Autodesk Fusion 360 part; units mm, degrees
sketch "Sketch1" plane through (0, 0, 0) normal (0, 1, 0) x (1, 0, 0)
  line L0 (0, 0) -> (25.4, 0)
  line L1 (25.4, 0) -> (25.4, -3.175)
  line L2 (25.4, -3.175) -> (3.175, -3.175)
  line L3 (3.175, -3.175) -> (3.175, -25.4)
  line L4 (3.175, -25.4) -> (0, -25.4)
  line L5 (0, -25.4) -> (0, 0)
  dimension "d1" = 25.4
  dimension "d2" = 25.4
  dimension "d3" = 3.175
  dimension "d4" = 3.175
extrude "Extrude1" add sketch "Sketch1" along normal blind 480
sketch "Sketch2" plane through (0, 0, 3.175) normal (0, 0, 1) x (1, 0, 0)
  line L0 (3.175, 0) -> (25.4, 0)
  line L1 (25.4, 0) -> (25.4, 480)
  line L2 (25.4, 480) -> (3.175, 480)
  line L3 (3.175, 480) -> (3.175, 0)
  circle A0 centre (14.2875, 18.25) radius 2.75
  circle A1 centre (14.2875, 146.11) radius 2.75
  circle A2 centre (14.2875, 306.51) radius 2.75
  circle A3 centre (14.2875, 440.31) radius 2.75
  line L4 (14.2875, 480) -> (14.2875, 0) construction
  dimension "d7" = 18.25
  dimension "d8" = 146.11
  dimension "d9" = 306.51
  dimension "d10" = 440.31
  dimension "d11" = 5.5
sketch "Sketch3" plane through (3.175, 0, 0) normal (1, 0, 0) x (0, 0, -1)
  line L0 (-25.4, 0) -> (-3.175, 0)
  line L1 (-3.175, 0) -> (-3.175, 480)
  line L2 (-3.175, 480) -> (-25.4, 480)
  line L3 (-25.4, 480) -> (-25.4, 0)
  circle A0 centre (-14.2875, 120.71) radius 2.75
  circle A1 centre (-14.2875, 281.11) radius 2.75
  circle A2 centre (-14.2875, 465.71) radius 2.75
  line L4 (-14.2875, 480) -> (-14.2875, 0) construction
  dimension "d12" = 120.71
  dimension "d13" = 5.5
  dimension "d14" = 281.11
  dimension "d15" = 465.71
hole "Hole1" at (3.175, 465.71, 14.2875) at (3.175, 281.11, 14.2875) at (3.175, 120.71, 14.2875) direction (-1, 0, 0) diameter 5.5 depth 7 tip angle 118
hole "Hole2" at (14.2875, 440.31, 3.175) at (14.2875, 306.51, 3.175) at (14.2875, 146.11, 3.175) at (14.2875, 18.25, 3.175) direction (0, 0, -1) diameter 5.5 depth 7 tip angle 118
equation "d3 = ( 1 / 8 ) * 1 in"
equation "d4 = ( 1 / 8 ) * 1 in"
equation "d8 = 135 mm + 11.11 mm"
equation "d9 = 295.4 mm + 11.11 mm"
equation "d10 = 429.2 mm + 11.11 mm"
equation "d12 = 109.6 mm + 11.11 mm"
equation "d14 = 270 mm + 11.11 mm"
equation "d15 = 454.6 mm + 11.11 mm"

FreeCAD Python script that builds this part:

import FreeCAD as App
import Part
import Sketcher
Q = App.Units.Quantity

doc = App.newDocument("Part")
body = doc.addObject("PartDesign::Body", "Body")

sketch1 = body.newObject("Sketcher::SketchObject", "Sketch")
sketch1.AttachmentSupport = (doc.getObject("XZ_Plane"), [""])
sketch1.MapMode = "FlatFace"
sketch1.addGeometry(Part.LineSegment(App.Vector(25.4, 0, 0), App.Vector(0, 0, 0)), False)
sketch1.addGeometry(Part.LineSegment(App.Vector(0, 0, 0), App.Vector(0, 25.4, 0)), False)
sketch1.addGeometry(Part.LineSegment(App.Vector(0, 25.4, 0), App.Vector(3.175, 25.4, 0)), False)
sketch1.addGeometry(Part.LineSegment(App.Vector(3.175, 25.4, 0), App.Vector(3.175, 3.175, 0)), False)
sketch1.addGeometry(Part.LineSegment(App.Vector(3.175, 3.175, 0), App.Vector(25.4, 3.175, 0)), False)
sketch1.addGeometry(Part.LineSegment(App.Vector(25.4, 3.175, 0), App.Vector(25.4, 0, 0)), False)
sketch1.addConstraint(Sketcher.Constraint("Coincident", 0, 2, 1, 1))
sketch1.addConstraint(Sketcher.Constraint("Coincident", 1, 2, 2, 1))
sketch1.addConstraint(Sketcher.Constraint("Coincident", 2, 2, 3, 1))
sketch1.addConstraint(Sketcher.Constraint("Coincident", 3, 2, 4, 1))
sketch1.addConstraint(Sketcher.Constraint("Coincident", 4, 2, 5, 1))
sketch1.addConstraint(Sketcher.Constraint("Coincident", 5, 2, 0, 1))
sketch1.addConstraint(Sketcher.Constraint("Horizontal", 0))
sketch1.addConstraint(Sketcher.Constraint("Vertical", 1))
sketch1.addConstraint(Sketcher.Constraint("Horizontal", 2))
sketch1.addConstraint(Sketcher.Constraint("Vertical", 3))
sketch1.addConstraint(Sketcher.Constraint("Horizontal", 4))
sketch1.addConstraint(Sketcher.Constraint("Vertical", 5))
sketch1.addConstraint(Sketcher.Constraint("Coincident", 0, 2, -1, 1))
sketch1.addConstraint(Sketcher.Constraint("Equal", 0, 1))
sketch1.addConstraint(Sketcher.Constraint("Equal", 4, 3))
sketch1.addConstraint(Sketcher.Constraint("DistanceX", 0, 2, 0, 1, Q("1 in")))
sketch1.addConstraint(Sketcher.Constraint("DistanceX", 2, 1, 2, 2, Q("0.125 in")))
pad1 = body.newObject("PartDesign::Pad", "Pad")
pad1.Profile = sketch1
pad1.Length = 480
pad1.Reversed = True

sketch2 = body.newObject("Sketcher::SketchObject", "Sketch001")
sketch2.AttachmentSupport = (doc.getObject("YZ_Plane"), [""])
sketch2.MapMode = "FlatFace"
sketch2.AttachmentOffset = App.Placement(App.Vector(0, 0, 0.125 * 25.4), App.Rotation())
sketch2.addGeometry(Part.Circle(App.Vector(465.71, 14.2875, 0), App.Vector(0, 0, 1), 2.75), False)
sketch2.addGeometry(Part.Circle(App.Vector(281.11, 14.2875, 0), App.Vector(0, 0, 1), 2.75), False)
sketch2.addGeometry(Part.Circle(App.Vector(120.71, 14.2875, 0), App.Vector(0, 0, 1), 2.75), False)
sketch2.addConstraint(Sketcher.Constraint("Equal", 0, 1))
sketch2.addConstraint(Sketcher.Constraint("Equal", 1, 2))
sketch2.addConstraint(Sketcher.Constraint("Horizontal", 0, 3, 1, 3))
sketch2.addConstraint(Sketcher.Constraint("Horizontal", 1, 3, 2, 3))
sketch2.addConstraint(Sketcher.Constraint("Diameter", 0, 5.5))
sketch2.addConstraint(Sketcher.Constraint("DistanceY", -1, 1, 0, 3, Q("0.5625 in")))
sketch2.addConstraint(Sketcher.Constraint("DistanceX", -1, 1, 0, 3, 465.71))
sketch2.addConstraint(Sketcher.Constraint("DistanceX", -1, 1, 1, 3, 281.11))
sketch2.addConstraint(Sketcher.Constraint("DistanceX", -1, 1, 2, 3, 120.71))
doc.recompute()
hole = body.newObject("PartDesign::Hole", "Hole")
hole.Profile = sketch2
hole.ThreadType = "None"
hole.Diameter = 5.5
hole.DepthType = "Dimension"
hole.Depth = Q("0.2755906 in")
hole.DrillPoint = "Angled"
hole.DrillPointAngle = 118

sketch3 = body.newObject("Sketcher::SketchObject", "Sketch002")
sketch3.AttachmentSupport = (doc.getObject("XY_Plane"), [""])
sketch3.MapMode = "FlatFace"
sketch3.AttachmentOffset = App.Placement(App.Vector(0, 0, 0.125 * 25.4), App.Rotation())
sketch3.addGeometry(Part.Circle(App.Vector(14.2875, 440.31, 0), App.Vector(0, 0, 1), 2.75), False)
sketch3.addGeometry(Part.Circle(App.Vector(14.2875, 306.51, 0), App.Vector(0, 0, 1), 2.75), False)
sketch3.addGeometry(Part.Circle(App.Vector(14.2875, 146.11, 0), App.Vector(0, 0, 1), 2.75), False)
sketch3.addGeometry(Part.Circle(App.Vector(14.2875, 18.25, 0), App.Vector(0, 0, 1), 2.75), False)
sketch3.addConstraint(Sketcher.Constraint("Equal", 0, 1))
sketch3.addConstraint(Sketcher.Constraint("Equal", 1, 2))
sketch3.addConstraint(Sketcher.Constraint("Equal", 2, 3))
sketch3.addConstraint(Sketcher.Constraint("Vertical", 0, 3, 1, 3))
sketch3.addConstraint(Sketcher.Constraint("Vertical", 1, 3, 2, 3))
sketch3.addConstraint(Sketcher.Constraint("Vertical", 2, 3, 3, 3))
sketch3.addConstraint(Sketcher.Constraint("Diameter", 0, 5.5))
sketch3.addConstraint(Sketcher.Constraint("DistanceX", -1, 1, 0, 3, Q("0.5625 in")))
sketch3.addConstraint(Sketcher.Constraint("DistanceY", -1, 1, 3, 3, Q("0.7185 in")))
sketch3.addConstraint(Sketcher.Constraint("DistanceY", -1, 1, 0, 3, 440.31))
sketch3.addConstraint(Sketcher.Constraint("DistanceY", -1, 1, 1, 3, 306.51))
sketch3.addConstraint(Sketcher.Constraint("DistanceY", -1, 1, 2, 3, 146.11))
doc.recompute()
hole2 = body.newObject("PartDesign::Hole", "Hole001")
hole2.Profile = sketch3
hole2.ThreadType = "None"
hole2.Diameter = 5.5
hole2.DepthType = "Dimension"
hole2.Depth = Q("0.2755906 in")
hole2.DrillPoint = "Angled"
hole2.DrillPointAngle = 118

doc.recompute()
